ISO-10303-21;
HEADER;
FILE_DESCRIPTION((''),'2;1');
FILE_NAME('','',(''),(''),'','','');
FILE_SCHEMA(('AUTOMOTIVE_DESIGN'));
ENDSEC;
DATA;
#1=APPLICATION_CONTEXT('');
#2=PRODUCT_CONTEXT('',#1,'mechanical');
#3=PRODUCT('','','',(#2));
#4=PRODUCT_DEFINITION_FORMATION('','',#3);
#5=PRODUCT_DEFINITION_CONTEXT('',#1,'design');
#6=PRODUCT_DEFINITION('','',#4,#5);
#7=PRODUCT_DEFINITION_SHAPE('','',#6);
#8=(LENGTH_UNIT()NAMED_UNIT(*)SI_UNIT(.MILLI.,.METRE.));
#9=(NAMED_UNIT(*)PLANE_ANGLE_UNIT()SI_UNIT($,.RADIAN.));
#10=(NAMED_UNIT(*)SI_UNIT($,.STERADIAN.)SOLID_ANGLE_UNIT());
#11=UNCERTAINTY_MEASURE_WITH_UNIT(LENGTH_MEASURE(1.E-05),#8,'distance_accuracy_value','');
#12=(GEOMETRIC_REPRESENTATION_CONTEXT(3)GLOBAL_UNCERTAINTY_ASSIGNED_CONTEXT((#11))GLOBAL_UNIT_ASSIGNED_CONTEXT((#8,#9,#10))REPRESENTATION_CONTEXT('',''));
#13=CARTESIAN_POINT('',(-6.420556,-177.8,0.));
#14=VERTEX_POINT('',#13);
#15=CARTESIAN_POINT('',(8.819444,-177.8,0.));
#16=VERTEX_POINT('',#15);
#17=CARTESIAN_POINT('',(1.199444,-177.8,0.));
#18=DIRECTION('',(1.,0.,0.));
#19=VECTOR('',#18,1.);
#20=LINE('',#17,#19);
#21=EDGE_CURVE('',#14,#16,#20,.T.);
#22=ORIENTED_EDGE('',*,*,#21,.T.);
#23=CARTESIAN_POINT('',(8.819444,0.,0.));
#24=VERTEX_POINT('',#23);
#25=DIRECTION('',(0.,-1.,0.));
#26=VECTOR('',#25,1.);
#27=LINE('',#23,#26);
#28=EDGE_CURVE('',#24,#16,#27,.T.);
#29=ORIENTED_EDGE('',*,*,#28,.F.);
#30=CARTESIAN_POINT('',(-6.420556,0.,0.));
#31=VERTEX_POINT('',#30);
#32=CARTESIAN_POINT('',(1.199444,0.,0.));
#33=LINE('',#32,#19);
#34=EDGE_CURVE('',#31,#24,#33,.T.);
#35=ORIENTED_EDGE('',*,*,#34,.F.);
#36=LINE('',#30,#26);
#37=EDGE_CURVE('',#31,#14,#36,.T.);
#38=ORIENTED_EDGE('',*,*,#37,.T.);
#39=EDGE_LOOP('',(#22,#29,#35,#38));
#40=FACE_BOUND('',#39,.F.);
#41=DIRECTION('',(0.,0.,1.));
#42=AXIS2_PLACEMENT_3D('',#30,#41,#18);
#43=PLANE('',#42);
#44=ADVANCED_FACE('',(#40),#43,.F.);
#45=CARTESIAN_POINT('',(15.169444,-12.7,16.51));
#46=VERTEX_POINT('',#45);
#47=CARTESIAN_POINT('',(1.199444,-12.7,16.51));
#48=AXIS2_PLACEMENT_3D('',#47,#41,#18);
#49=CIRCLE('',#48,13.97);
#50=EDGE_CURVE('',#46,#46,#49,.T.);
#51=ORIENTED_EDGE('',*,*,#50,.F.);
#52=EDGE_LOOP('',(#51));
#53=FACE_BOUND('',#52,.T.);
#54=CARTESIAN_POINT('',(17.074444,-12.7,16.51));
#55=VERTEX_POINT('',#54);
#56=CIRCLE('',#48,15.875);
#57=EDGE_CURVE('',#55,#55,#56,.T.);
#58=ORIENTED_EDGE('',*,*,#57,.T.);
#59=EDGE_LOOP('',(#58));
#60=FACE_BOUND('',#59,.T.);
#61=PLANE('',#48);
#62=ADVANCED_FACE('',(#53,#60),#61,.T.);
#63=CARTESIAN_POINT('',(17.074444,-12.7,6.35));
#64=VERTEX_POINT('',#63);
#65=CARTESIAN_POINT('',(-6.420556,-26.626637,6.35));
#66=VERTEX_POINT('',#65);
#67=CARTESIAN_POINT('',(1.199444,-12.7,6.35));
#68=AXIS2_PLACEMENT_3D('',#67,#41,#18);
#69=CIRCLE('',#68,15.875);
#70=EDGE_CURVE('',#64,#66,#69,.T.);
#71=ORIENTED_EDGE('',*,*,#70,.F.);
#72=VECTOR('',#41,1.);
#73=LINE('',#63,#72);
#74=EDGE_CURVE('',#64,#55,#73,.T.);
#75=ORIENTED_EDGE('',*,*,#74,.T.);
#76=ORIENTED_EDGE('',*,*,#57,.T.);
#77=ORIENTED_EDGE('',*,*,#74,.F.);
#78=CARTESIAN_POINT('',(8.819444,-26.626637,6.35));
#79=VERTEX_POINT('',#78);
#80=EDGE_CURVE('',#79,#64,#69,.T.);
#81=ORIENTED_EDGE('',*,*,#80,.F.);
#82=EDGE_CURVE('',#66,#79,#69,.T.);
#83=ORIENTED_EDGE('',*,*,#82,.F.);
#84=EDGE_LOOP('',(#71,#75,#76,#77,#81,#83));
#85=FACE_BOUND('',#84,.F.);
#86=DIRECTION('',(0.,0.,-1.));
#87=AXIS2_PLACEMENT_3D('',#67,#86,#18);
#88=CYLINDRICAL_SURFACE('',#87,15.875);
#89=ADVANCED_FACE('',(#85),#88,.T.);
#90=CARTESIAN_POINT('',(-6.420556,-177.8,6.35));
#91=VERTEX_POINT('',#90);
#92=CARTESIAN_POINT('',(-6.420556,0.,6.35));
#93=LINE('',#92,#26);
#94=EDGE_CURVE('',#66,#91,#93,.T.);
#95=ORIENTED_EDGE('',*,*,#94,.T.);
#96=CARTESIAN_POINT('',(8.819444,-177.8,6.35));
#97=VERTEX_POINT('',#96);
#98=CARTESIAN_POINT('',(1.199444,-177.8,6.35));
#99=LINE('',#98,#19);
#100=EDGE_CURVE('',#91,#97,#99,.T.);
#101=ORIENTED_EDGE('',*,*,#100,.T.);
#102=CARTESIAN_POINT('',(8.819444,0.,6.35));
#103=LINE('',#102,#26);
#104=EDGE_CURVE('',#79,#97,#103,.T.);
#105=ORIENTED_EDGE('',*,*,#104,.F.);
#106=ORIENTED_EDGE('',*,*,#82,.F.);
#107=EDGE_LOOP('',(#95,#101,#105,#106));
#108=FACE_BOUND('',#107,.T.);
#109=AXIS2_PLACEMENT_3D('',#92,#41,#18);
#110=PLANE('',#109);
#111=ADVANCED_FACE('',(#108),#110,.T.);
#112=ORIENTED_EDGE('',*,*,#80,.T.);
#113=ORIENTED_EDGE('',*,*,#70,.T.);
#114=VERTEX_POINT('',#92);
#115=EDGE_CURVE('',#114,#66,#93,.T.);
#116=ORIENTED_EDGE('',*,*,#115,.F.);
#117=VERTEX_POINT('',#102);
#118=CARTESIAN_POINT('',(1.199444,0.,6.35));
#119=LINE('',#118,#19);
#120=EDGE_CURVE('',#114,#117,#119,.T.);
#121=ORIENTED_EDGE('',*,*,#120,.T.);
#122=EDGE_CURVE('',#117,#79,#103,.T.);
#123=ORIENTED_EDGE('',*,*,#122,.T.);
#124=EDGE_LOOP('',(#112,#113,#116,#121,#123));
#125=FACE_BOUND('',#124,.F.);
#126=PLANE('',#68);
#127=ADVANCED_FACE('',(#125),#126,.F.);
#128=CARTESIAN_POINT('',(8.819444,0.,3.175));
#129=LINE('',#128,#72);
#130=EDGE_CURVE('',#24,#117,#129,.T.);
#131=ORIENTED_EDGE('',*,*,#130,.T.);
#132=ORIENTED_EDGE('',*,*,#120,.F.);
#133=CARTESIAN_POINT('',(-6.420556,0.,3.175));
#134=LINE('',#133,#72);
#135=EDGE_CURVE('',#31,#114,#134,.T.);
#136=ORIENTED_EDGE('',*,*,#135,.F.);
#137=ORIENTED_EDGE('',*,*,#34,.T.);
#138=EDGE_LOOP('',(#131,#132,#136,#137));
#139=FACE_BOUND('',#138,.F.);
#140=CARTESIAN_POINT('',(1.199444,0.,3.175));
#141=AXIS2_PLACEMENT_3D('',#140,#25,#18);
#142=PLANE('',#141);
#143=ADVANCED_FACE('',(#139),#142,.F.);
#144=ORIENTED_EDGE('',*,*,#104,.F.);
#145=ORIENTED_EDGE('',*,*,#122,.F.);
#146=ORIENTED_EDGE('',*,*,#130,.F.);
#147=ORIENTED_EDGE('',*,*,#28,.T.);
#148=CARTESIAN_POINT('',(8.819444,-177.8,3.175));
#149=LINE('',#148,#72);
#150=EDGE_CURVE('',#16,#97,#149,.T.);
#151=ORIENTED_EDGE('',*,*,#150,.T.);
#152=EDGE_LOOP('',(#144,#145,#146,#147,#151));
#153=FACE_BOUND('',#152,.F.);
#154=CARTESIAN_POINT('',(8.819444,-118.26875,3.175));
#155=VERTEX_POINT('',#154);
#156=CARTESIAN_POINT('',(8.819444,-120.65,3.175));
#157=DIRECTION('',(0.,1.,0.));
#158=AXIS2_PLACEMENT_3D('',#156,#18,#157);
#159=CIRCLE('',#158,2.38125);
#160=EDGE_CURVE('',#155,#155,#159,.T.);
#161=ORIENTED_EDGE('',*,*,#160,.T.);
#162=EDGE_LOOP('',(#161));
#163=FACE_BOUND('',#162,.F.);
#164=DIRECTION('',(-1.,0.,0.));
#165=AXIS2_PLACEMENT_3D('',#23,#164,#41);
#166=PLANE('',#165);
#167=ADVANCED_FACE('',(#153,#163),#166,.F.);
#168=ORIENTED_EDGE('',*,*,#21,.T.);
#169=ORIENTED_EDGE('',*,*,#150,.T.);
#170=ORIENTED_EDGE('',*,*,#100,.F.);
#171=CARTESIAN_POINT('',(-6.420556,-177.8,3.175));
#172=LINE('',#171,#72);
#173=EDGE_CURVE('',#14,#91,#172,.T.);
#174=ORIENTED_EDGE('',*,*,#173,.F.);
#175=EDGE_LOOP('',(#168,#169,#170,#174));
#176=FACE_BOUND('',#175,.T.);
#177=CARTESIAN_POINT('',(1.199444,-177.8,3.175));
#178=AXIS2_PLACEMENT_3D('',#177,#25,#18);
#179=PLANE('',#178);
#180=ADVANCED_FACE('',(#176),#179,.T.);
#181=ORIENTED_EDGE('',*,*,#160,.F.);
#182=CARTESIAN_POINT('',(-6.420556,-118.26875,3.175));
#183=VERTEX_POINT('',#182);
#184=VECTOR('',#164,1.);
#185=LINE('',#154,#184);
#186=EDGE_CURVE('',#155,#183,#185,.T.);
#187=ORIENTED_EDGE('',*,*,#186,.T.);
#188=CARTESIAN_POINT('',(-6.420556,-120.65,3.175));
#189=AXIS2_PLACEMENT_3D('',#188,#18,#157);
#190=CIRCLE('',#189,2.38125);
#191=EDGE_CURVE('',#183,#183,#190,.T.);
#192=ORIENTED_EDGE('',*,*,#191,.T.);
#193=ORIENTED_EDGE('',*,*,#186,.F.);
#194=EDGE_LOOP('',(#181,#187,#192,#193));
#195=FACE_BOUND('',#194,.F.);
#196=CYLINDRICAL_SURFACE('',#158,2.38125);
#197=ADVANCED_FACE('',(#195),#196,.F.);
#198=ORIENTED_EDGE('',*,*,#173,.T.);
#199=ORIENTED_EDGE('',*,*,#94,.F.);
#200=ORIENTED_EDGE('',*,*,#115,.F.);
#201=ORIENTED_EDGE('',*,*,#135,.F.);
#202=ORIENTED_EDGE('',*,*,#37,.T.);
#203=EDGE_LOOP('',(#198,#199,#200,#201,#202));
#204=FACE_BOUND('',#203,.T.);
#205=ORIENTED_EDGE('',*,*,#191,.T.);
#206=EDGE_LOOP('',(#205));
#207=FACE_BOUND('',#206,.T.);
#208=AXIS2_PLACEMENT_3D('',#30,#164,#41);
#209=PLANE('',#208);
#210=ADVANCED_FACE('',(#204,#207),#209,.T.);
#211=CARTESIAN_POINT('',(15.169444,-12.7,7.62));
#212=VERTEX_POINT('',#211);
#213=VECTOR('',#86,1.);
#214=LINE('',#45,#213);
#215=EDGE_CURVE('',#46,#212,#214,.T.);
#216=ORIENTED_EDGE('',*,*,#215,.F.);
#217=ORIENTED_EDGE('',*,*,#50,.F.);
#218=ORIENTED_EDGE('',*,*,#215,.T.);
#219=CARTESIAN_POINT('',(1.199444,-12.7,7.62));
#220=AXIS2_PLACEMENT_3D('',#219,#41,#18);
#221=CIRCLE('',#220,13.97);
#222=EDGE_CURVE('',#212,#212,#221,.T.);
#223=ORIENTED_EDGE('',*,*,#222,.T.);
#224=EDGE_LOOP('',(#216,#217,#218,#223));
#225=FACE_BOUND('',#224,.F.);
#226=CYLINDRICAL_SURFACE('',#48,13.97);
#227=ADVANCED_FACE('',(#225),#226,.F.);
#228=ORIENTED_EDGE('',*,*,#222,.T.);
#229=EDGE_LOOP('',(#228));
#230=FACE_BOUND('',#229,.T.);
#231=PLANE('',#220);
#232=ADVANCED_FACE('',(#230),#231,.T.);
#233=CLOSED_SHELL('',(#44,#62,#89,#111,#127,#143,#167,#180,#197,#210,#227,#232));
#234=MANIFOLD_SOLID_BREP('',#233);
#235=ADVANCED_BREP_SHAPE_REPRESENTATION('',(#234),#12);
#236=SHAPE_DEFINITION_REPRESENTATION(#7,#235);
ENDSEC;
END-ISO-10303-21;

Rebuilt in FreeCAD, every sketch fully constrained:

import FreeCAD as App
import Part
import Sketcher

V = App.Vector
Q = App.Units.Quantity

doc = App.newDocument("Part")
body = doc.addObject("PartDesign::Body", "Body")

# Sketch on XZ plane
sketch1 = body.newObject("Sketcher::SketchObject", "Sketch")
sketch1.AttachmentSupport = (doc.getObject("XZ_Plane"), [""])
sketch1.MapMode = "FlatFace"
sketch1.addGeometry(Part.LineSegment(V(-6, 6, 0), V(-6, 0, 0)), False)
sketch1.addGeometry(Part.LineSegment(V(-6, 0, 0), V(9, 0, 0)), False)
sketch1.addGeometry(Part.LineSegment(V(9, 0, 0), V(9, 6, 0)), False)
sketch1.addGeometry(Part.LineSegment(V(9, 6, 0), V(-6, 6, 0)), False)
sketch1.addConstraint(Sketcher.Constraint("Coincident", 0, 2, 1, 1))
sketch1.addConstraint(Sketcher.Constraint("Coincident", 1, 2, 2, 1))
sketch1.addConstraint(Sketcher.Constraint("Coincident", 2, 2, 3, 1))
sketch1.addConstraint(Sketcher.Constraint("Coincident", 3, 2, 0, 1))
sketch1.addConstraint(Sketcher.Constraint("Vertical", 0))
sketch1.addConstraint(Sketcher.Constraint("Horizontal", 1))
sketch1.addConstraint(Sketcher.Constraint("Vertical", 2))
sketch1.addConstraint(Sketcher.Constraint("Horizontal", 3))
sketch1.addConstraint(Sketcher.Constraint("PointOnObject", 0, 2, -1))
sketch1.addConstraint(Sketcher.Constraint("DistanceX", 1, 1, 1, 2, Q("0.6 in")))
sketch1.addConstraint(Sketcher.Constraint("DistanceY", 0, 2, 0, 1, Q("0.25 in")))
sketch1.addConstraint(Sketcher.Constraint("DistanceX", 0, 2, -1, 1, 6.420556))
pad1 = body.newObject("PartDesign::Pad", "Pad")
pad1.Profile = sketch1
pad1.Length = Q("7 in")

# Sketch on YZ plane
sketch2 = body.newObject("Sketcher::SketchObject", "Sketch001")
sketch2.AttachmentSupport = (doc.getObject("YZ_Plane"), [""])
sketch2.MapMode = "FlatFace"
sketch2.AttachmentOffset = App.Placement(V(0, 0, 8.819444), App.Rotation())
sketch2.addGeometry(Part.Circle(V(-120.7, 3.2, 0), V(0, 0, 1), 2.4), False)
sketch2.addConstraint(Sketcher.Constraint("Diameter", 0, Q("0.1875 in")))
sketch2.addConstraint(Sketcher.Constraint("DistanceX", 0, 3, -1, 1, Q("4.75 in")))
sketch2.addConstraint(Sketcher.Constraint("DistanceY", -1, 1, 0, 3, Q("0.125 in")))
pocket1 = body.newObject("PartDesign::Pocket", "Pocket")
pocket1.Profile = sketch2
pocket1.Type = "ThroughAll"

# Sketch on XY plane
sketch3 = body.newObject("Sketcher::SketchObject", "Sketch002")
sketch3.AttachmentSupport = (doc.getObject("XY_Plane"), [""])
sketch3.MapMode = "FlatFace"
sketch3.AttachmentOffset = App.Placement(V(0, 0, 0.25 * 25.4), App.Rotation())
sketch3.addGeometry(Part.Circle(V(1, -13, 0), V(0, 0, 1), 16), False)
sketch3.addConstraint(Sketcher.Constraint("Diameter", 0, Q("1.25 in")))
sketch3.addConstraint(Sketcher.Constraint("DistanceY", 0, 3, -1, 1, Q("0.5 in")))
sketch3.addConstraint(Sketcher.Constraint("DistanceX", -1, 1, 0, 3, 1.199444))
pad2 = body.newObject("PartDesign::Pad", "Pad001")
pad2.Profile = sketch3
pad2.Length = Q("0.4 in")

# Sketch on XY plane
sketch4 = body.newObject("Sketcher::SketchObject", "Sketch003")
sketch4.AttachmentSupport = (doc.getObject("XY_Plane"), [""])
sketch4.MapMode = "FlatFace"
sketch4.AttachmentOffset = App.Placement(V(0, 0, 0.65 * 25.4), App.Rotation())
sketch4.addGeometry(Part.Circle(V(1, -13, 0), V(0, 0, 1), 14), False)
sketch4.addConstraint(Sketcher.Constraint("Diameter", 0, Q("1.1 in")))
sketch4.addConstraint(Sketcher.Constraint("DistanceY", 0, 3, -1, 1, Q("0.5 in")))
sketch4.addConstraint(Sketcher.Constraint("DistanceX", -1, 1, 0, 3, 1.199444))
pocket2 = body.newObject("PartDesign::Pocket", "Pocket001")
pocket2.Profile = sketch4
pocket2.Length = Q("0.35 in")

doc.recompute()
